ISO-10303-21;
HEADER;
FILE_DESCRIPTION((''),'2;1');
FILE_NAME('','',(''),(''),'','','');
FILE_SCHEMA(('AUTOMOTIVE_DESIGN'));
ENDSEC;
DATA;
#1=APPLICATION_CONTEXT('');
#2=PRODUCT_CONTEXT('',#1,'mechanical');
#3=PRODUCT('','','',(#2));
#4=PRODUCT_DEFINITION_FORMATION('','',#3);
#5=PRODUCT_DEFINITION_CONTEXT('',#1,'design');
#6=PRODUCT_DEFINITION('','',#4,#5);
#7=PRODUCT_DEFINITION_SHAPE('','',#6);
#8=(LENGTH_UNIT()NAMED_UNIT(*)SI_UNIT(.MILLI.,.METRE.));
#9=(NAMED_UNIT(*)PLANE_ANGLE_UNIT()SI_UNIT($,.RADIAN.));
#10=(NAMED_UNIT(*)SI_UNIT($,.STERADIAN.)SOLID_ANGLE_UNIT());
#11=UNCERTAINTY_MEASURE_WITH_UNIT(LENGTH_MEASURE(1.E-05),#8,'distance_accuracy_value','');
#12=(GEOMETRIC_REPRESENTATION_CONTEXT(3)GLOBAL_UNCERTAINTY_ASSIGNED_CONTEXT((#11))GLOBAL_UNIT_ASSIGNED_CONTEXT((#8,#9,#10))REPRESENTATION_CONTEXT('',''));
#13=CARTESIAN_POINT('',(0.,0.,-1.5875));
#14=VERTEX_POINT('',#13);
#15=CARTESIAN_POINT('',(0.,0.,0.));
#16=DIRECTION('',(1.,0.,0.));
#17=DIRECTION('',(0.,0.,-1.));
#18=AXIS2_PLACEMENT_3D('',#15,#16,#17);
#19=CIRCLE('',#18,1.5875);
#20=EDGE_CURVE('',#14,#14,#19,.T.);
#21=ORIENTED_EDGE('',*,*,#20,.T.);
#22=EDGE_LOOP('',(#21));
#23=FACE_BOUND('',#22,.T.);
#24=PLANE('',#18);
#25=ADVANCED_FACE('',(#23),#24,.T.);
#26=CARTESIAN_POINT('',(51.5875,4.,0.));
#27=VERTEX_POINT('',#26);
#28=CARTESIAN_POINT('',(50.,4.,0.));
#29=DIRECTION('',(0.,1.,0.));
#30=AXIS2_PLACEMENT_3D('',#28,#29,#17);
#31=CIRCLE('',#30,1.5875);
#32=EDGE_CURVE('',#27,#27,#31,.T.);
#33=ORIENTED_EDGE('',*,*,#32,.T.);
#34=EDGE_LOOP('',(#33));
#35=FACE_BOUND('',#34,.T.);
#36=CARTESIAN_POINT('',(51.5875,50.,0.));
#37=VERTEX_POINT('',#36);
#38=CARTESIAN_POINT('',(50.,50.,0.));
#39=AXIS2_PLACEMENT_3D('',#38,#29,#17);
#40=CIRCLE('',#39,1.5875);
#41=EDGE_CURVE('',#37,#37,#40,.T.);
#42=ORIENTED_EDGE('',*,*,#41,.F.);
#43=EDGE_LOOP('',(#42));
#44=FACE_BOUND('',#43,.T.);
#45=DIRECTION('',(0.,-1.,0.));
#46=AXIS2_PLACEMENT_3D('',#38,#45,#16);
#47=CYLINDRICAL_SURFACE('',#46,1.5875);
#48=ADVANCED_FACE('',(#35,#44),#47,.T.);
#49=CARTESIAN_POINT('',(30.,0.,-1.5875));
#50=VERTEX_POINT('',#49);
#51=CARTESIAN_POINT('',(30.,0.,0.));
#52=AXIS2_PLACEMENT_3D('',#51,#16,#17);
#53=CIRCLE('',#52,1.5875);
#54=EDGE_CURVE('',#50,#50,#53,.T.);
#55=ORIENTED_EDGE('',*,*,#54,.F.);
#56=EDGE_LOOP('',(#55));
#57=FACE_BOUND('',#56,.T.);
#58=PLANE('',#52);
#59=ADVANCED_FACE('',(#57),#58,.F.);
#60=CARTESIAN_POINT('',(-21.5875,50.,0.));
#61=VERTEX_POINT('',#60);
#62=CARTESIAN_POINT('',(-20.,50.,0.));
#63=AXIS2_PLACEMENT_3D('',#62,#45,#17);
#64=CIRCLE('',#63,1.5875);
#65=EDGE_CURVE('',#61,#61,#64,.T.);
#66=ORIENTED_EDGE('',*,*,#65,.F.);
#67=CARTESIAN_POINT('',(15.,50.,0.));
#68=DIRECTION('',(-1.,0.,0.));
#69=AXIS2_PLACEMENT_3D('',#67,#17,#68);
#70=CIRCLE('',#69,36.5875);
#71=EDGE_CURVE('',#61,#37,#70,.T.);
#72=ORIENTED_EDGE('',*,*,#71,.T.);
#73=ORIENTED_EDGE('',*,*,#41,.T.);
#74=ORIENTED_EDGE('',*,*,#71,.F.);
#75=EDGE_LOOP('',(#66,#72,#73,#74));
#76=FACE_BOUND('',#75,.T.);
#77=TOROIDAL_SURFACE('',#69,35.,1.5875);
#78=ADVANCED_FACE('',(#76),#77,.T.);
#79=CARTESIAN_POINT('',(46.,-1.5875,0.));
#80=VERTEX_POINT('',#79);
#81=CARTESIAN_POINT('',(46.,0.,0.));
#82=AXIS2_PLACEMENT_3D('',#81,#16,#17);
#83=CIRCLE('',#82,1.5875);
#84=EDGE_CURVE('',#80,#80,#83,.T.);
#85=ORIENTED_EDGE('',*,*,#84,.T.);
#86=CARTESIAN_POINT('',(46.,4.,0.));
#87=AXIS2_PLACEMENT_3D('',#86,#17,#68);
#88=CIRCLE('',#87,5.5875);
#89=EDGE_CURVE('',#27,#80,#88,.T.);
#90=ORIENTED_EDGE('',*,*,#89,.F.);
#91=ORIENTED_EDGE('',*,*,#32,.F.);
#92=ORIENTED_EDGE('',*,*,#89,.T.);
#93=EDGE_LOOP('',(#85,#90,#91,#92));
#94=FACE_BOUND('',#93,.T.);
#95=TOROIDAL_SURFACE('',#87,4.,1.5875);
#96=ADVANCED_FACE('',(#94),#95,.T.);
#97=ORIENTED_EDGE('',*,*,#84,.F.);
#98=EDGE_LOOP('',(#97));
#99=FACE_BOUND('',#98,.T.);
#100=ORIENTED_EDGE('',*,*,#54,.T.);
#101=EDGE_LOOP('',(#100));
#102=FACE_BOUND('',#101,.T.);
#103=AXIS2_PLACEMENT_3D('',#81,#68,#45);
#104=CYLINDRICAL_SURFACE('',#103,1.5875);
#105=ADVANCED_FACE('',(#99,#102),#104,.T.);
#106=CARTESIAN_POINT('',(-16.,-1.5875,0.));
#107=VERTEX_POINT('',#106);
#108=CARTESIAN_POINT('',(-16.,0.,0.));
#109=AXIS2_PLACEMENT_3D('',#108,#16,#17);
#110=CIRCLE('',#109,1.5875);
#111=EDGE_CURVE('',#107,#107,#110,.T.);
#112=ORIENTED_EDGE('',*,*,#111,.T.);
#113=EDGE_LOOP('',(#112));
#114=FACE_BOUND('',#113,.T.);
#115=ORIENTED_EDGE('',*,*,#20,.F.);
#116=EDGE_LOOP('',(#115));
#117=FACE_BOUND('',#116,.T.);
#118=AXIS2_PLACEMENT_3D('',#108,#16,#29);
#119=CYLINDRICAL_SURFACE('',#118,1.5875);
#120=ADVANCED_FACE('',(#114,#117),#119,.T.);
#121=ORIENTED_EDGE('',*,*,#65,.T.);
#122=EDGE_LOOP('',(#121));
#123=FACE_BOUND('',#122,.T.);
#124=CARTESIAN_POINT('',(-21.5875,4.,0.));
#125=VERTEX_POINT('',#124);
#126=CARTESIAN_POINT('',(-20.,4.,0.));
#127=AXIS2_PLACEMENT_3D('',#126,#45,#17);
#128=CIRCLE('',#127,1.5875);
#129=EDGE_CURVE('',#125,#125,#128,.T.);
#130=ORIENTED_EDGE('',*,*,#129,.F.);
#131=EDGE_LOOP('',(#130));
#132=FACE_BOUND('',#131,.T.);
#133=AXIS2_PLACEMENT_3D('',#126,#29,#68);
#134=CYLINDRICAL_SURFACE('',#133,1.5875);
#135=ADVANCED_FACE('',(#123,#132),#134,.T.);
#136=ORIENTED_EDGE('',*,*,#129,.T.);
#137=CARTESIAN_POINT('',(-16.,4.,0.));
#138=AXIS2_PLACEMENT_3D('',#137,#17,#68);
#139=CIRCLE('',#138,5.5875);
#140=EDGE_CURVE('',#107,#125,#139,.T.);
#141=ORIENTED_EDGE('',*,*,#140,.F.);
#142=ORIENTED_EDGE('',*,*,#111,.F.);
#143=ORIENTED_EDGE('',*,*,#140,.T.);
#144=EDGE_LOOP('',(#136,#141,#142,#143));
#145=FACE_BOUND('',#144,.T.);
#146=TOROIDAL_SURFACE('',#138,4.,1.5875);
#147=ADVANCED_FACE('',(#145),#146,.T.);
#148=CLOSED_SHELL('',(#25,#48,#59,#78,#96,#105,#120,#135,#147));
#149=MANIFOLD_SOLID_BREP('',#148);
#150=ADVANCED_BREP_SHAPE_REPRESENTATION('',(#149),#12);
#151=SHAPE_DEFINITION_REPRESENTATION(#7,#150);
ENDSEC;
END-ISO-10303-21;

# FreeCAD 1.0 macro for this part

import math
import FreeCAD as App
import Part
import Sketcher
from FreeCAD import Vector

doc = App.newDocument("Part")
body = doc.addObject("PartDesign::Body", "Body")

sketch1 = body.newObject("Sketcher::SketchObject", "Sketch")
sketch1.AttachmentSupport = (doc.getObject("YZ_Plane"), [""])
sketch1.MapMode = "FlatFace"
sketch1.addGeometry(Part.Circle(Vector(0, 0, 0), Vector(0, 0, 1), 1.6), False)
sketch1.addConstraint([
    Sketcher.Constraint("Coincident", 0, 3, -1, 1),
    Sketcher.Constraint("Diameter", 0, 3.175),
])

sketch2 = body.newObject("Sketcher::SketchObject", "Sketch001")
sketch2.AttachmentSupport = (doc.getObject("XY_Plane"), [""])
sketch2.MapMode = "FlatFace"
sketch2.addGeometry([
    Part.LineSegment(Vector(0, 0, 0), Vector(-16, 0, 0)),
    Part.ArcOfCircle(Part.Circle(Vector(-16, 4, 0), Vector(0, 0, 1), 4), math.radians(180), math.radians(270)),
    Part.LineSegment(Vector(-20, 4, 0), Vector(-20, 50, 0)),
    Part.ArcOfCircle(Part.Circle(Vector(15, 50, 0), Vector(0, 0, 1), 35), math.radians(0), math.radians(180)),
    Part.LineSegment(Vector(50, 50, 0), Vector(50, 4, 0)),
    Part.ArcOfCircle(Part.Circle(Vector(46, 4, 0), Vector(0, 0, 1), 4), math.radians(-90), math.radians(0)),
    Part.LineSegment(Vector(46, 0, 0), Vector(30, 0, 0)),
], False)
sketch2.addConstraint([
    Sketcher.Constraint("Tangent", 0, 2, 1, 2),
    Sketcher.Constraint("Tangent", 1, 1, 2, 1),
    Sketcher.Constraint("Tangent", 2, 2, 3, 2),
    Sketcher.Constraint("Tangent", 3, 1, 4, 1),
    Sketcher.Constraint("Tangent", 4, 2, 5, 2),
    Sketcher.Constraint("Tangent", 5, 1, 6, 1),
    Sketcher.Constraint("Horizontal", 0),
    Sketcher.Constraint("Vertical", 2),
    Sketcher.Constraint("Vertical", 4),
    Sketcher.Constraint("Horizontal", 6),
    Sketcher.Constraint("Coincident", 0, 1, -1, 1),
    Sketcher.Constraint("Equal", 1, 5),
    Sketcher.Constraint("PointOnObject", 5, 1, -1),
    Sketcher.Constraint("Equal", 0, 6),
    Sketcher.Constraint("Radius", 1, 4.0),
    Sketcher.Constraint("Radius", 3, 35.0),
    Sketcher.Constraint("DistanceX", 0, 2, 0, 1, 16.0),
    Sketcher.Constraint("DistanceY", 2, 1, 2, 2, 46.0),
])
doc.recompute()

additivepipe = body.newObject("PartDesign::AdditivePipe", "AdditivePipe")
additivepipe.Profile = sketch1
additivepipe.Spine = (sketch2, ["Edge1", "Edge2", "Edge3", "Edge4", "Edge5", "Edge6", "Edge7"])

doc.recompute()
